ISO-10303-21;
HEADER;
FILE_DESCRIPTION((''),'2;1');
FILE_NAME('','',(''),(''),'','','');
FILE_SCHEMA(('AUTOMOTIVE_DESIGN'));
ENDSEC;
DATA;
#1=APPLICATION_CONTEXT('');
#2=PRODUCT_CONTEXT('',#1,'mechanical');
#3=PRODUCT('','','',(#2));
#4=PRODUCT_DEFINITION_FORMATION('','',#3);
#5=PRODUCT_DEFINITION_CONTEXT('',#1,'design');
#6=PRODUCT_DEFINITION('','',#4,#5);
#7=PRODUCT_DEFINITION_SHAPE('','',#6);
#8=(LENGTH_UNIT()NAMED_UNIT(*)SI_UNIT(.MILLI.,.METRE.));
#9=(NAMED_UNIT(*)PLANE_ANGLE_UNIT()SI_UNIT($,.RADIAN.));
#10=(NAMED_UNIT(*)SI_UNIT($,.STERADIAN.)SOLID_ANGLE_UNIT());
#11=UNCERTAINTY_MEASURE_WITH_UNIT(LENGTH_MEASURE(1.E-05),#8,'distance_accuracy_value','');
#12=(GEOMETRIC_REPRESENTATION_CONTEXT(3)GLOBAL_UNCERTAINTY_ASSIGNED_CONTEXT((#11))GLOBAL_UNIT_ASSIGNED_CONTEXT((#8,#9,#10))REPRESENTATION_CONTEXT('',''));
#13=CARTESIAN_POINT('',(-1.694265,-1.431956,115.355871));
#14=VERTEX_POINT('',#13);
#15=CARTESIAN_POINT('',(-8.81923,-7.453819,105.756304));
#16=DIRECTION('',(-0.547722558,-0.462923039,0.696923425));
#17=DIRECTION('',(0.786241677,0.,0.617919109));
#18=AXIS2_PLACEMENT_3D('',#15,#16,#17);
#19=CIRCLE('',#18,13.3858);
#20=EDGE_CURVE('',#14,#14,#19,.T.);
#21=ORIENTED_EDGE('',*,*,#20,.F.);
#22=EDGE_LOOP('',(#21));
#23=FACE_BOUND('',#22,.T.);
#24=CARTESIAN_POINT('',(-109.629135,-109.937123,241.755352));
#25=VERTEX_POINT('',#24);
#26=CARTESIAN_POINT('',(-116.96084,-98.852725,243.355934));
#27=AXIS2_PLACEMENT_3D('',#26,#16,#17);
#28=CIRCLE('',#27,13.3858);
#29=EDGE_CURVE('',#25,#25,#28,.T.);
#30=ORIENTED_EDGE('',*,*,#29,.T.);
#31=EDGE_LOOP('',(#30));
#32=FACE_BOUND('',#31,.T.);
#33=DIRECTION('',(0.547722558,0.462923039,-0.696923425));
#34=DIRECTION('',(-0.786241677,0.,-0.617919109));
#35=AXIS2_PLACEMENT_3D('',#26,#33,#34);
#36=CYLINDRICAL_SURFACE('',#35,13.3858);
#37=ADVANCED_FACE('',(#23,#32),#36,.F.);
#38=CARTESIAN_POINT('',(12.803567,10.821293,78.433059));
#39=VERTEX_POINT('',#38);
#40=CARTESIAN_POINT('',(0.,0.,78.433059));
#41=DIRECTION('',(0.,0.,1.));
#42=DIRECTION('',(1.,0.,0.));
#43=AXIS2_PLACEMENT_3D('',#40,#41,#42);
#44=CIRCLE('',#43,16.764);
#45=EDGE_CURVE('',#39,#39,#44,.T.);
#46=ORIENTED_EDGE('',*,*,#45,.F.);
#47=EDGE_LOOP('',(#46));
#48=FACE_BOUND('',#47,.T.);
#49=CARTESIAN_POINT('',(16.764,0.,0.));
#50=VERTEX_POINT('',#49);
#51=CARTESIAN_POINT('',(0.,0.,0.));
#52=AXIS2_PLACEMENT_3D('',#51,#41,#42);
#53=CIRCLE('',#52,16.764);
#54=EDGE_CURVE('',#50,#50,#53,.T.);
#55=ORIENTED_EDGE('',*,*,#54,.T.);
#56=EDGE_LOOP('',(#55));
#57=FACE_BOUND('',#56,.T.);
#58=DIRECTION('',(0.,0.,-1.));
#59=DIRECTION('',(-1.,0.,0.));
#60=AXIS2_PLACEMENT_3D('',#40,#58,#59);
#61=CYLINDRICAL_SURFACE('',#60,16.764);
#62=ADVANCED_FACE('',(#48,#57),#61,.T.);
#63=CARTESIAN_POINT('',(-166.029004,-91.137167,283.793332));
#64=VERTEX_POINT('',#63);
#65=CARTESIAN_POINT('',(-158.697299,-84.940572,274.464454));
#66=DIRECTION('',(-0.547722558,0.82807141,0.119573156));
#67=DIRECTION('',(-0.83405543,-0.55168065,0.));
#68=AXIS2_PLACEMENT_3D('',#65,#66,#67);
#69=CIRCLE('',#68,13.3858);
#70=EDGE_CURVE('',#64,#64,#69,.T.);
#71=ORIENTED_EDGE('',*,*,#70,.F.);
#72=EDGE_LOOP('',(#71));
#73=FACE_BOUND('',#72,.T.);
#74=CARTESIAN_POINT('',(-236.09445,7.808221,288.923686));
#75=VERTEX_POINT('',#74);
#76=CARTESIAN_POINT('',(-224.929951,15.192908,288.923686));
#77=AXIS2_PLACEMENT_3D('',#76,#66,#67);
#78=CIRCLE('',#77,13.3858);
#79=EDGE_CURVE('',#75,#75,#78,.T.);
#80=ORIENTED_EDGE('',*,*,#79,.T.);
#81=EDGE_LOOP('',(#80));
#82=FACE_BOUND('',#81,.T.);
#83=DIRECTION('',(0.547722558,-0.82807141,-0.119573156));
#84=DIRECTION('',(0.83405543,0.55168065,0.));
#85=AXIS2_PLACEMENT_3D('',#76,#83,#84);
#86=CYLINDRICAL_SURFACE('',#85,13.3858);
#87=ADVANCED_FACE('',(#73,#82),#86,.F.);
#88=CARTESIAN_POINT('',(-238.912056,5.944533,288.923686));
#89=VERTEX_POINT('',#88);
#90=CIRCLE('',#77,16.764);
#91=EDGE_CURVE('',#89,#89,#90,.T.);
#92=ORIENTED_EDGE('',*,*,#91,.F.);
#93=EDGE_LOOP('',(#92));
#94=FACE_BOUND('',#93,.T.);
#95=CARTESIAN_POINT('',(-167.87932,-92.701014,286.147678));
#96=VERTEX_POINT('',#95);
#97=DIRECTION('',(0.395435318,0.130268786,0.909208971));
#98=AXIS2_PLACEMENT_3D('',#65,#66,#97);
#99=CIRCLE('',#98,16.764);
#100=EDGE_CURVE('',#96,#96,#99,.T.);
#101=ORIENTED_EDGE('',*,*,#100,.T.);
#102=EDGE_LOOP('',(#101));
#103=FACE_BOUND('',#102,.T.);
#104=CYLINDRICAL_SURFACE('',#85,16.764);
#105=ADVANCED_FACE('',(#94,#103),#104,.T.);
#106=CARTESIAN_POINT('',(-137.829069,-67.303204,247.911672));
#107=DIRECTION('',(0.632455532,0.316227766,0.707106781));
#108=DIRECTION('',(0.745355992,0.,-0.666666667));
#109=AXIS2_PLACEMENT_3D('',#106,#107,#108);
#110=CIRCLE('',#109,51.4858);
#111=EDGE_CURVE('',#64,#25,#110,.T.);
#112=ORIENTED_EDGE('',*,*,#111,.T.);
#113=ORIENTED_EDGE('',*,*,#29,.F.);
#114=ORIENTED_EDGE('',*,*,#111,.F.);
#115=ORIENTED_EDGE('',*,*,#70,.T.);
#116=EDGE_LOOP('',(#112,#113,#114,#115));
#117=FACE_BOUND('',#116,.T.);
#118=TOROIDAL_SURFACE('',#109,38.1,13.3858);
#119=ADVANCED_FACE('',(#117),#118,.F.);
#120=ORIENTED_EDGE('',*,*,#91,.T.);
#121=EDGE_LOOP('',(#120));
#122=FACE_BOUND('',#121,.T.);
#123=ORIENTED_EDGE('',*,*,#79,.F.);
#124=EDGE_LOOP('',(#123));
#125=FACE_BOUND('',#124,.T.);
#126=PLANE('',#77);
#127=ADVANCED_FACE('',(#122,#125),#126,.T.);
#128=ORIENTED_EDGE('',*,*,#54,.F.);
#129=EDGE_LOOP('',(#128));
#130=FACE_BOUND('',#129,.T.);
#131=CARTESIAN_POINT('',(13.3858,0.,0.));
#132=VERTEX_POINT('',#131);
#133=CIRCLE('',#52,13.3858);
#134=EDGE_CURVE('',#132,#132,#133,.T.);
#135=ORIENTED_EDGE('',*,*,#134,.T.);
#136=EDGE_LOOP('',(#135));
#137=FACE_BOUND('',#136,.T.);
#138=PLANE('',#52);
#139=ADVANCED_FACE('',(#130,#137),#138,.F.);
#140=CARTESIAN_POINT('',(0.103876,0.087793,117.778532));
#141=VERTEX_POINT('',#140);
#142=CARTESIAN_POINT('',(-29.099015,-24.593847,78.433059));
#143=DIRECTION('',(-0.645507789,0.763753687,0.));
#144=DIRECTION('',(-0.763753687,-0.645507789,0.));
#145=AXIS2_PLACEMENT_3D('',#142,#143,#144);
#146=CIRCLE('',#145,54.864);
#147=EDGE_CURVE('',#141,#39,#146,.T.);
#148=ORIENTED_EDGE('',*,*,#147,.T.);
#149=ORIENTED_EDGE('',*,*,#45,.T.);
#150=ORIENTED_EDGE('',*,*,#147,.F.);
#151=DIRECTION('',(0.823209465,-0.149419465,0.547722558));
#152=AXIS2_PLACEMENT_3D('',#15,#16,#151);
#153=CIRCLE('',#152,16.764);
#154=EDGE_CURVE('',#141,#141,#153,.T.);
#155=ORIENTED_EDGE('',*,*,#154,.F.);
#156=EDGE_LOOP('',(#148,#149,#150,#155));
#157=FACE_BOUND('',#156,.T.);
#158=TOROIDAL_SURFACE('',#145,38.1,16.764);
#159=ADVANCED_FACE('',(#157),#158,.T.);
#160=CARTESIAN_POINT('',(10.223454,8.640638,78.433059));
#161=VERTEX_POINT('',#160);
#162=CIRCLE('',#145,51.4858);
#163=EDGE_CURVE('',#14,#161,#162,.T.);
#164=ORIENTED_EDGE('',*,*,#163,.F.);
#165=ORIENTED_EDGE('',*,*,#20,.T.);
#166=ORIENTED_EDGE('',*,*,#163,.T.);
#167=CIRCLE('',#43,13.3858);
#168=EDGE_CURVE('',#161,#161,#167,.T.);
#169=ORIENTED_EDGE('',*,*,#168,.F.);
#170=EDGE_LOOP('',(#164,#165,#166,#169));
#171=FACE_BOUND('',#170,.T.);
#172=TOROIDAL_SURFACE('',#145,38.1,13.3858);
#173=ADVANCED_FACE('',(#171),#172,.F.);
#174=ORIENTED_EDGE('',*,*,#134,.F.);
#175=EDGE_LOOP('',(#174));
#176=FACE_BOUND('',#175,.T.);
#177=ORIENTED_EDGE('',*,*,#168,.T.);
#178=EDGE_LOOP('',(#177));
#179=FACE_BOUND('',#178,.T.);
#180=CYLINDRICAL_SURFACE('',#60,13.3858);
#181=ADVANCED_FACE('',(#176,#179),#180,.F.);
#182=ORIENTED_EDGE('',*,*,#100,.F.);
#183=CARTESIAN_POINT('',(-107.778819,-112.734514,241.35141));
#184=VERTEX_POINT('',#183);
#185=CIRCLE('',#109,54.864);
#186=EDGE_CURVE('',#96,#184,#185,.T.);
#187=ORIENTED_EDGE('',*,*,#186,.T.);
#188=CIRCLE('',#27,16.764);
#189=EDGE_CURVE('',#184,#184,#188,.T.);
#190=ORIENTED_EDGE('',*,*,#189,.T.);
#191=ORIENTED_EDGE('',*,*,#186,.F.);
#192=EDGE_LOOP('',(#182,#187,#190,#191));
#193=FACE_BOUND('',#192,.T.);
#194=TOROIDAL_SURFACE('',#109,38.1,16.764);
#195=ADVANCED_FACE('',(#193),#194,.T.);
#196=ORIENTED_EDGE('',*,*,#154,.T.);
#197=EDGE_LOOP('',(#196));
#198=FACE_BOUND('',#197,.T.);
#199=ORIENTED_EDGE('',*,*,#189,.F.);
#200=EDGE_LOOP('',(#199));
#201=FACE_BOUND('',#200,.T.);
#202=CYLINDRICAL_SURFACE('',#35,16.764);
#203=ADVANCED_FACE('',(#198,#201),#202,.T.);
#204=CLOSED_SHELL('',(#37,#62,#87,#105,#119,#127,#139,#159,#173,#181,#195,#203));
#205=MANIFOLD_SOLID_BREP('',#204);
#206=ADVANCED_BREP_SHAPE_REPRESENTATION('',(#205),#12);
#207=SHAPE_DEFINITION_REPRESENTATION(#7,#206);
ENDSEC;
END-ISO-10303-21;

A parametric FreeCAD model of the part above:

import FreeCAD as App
import Part
import Sketcher
from FreeCAD import Vector
Q = App.Units.Quantity

doc = App.newDocument("Part")
body = doc.addObject("PartDesign::Body", "Body")

# Sketch on XY plane
sketch1 = doc.addObject("Sketcher::SketchObject", "Sketch")
body.addObject(sketch1)
sketch1.AttachmentSupport = (doc.XY_Plane, [""])
sketch1.MapMode = "FlatFace"
sketch1.addGeometry([
    Part.Circle(Vector(0, 0, 0), Vector(0, 0, 1), 17),
    Part.Circle(Vector(0, 0, 0), Vector(0, 0, 1), 13),
], False)
sketch1.addConstraint([
    Sketcher.Constraint("Coincident", 0, 3, -1, 1),
    Sketcher.Constraint("Coincident", 1, 3, -1, 1),
    Sketcher.Constraint("Diameter", 0, Q("1.32 in")),
    Sketcher.Constraint("Diameter", 1, Q("1.054 in")),
])
pad1 = doc.addObject("PartDesign::Pad", "Pad")
body.addObject(pad1)
pad1.Profile = sketch1
pad1.Length = 78.433059

# Sketch on XY plane
sketch2 = doc.addObject("Sketcher::SketchObject", "Sketch001")
body.addObject(sketch2)
sketch2.AttachmentSupport = (doc.XY_Plane, [""])
sketch2.MapMode = "FlatFace"
sketch2.AttachmentOffset = App.Placement(Vector(0, 0, 78.433059), App.Rotation())
sketch2.addGeometry([
    Part.Circle(Vector(0, 0, 0), Vector(0, 0, 1), 17),
    Part.Circle(Vector(0, 0, 0), Vector(0, 0, 1), 13),
], False)
sketch2.addGeometry(Part.LineSegment(Vector(-29, -25, 0), Vector(-23, -32, 0)), True)  # axis
sketch2.addConstraint([
    Sketcher.Constraint("Coincident", 0, 3, -1, 1),
    Sketcher.Constraint("Coincident", 1, 3, -1, 1),
    Sketcher.Constraint("Diameter", 0, Q("1.32 in")),
    Sketcher.Constraint("Diameter", 1, Q("1.054 in")),
    Sketcher.Constraint("Distance", 2, Q("10 mm")),
    Sketcher.Constraint("DistanceX", 2, 1, -1, 1, Q("29.099015 mm")),
    Sketcher.Constraint("DistanceY", 2, 1, -1, 1, Q("24.593847 mm")),
    Sketcher.Constraint("DistanceX", 2, 2, -1, 1, Q("22.643938 mm")),
])
revolution = doc.addObject("PartDesign::Revolution", "Revolution")
body.addObject(revolution)
revolution.Profile = sketch2
revolution.ReferenceAxis = (sketch2, ["Axis0"])
revolution.Angle = 45.819312

# Sketch on an angled plane
sketch3 = doc.addObject("Sketcher::SketchObject", "Sketch002")
body.addObject(sketch3)
sketch3.Placement = App.Placement(Vector(-44.905078, -37.952783, 57.137324), App.Rotation(Vector(0.836660027, -0.303054266, 0.456243478), Vector(0, 0.832982816, 0.55329886), Vector(-0.547722558, -0.462923039, 0.696923425), "ZXY"))
sketch3.addGeometry([
    Part.Circle(Vector(43, 52, 0), Vector(0, 0, 1), 17),
    Part.Circle(Vector(43, 52, 0), Vector(0, 0, 1), 13),
], False)
sketch3.addConstraint([
    Sketcher.Constraint("Coincident", 1, 3, 0, 3),
    Sketcher.Constraint("Diameter", 0, Q("1.32 in")),
    Sketcher.Constraint("Diameter", 1, Q("1.054 in")),
    Sketcher.Constraint("DistanceX", -1, 1, 0, 3, Q("43.130839 mm")),
    Sketcher.Constraint("DistanceY", -1, 1, 0, 3, Q("52.30594 mm")),
])
pad2 = doc.addObject("PartDesign::Pad", "Pad001")
body.addObject(pad2)
pad2.Profile = sketch3
pad2.Length = 197.438664

# Sketch on an angled plane
sketch4 = doc.addObject("Sketcher::SketchObject", "Sketch003")
body.addObject(sketch4)
sketch4.Placement = App.Placement(Vector(-153.046689, -129.351689, 194.736954), App.Rotation(Vector(0.836660027, -0.303054266, 0.456243478), Vector(0, 0.832982816, 0.55329886), Vector(-0.547722558, -0.462923039, 0.696923425), "ZXY"))
sketch4.addGeometry([
    Part.Circle(Vector(43, 52, 0), Vector(0, 0, 1), 17),
    Part.Circle(Vector(43, 52, 0), Vector(0, 0, 1), 13),
], False)
sketch4.addGeometry(Part.LineSegment(Vector(18, 81, 0), Vector(11, 75, 0)), True)  # axis
sketch4.addConstraint([
    Sketcher.Constraint("Coincident", 1, 3, 0, 3),
    Sketcher.Constraint("Diameter", 0, Q("1.32 in")),
    Sketcher.Constraint("Diameter", 1, Q("1.054 in")),
    Sketcher.Constraint("Distance", 2, Q("10 mm")),
    Sketcher.Constraint("DistanceX", -1, 1, 0, 3, Q("43.130839 mm")),
    Sketcher.Constraint("DistanceY", -1, 1, 0, 3, Q("52.30594 mm")),
    Sketcher.Constraint("DistanceX", 2, 2, 2, 1, Q("7.559289 mm")),
    Sketcher.Constraint("DistanceX", -1, 1, 2, 1, Q("18.188534 mm")),
    Sketcher.Constraint("DistanceY", -1, 1, 2, 1, Q("81.106832 mm")),
])
revolution2 = doc.addObject("PartDesign::Revolution", "Revolution001")
body.addObject(revolution2)
revolution2.Profile = sketch4
revolution2.ReferenceAxis = (sketch4, ["Axis0"])
revolution2.Angle = 90

# Sketch on an angled plane
sketch5 = doc.addObject("Sketcher::SketchObject", "Sketch004")
body.addObject(sketch5)
sketch5.Placement = App.Placement(Vector(-27.059582, 40.909884, 5.90737), App.Rotation(Vector(0.836660027, 0.542099988, 0.078279005), Vector(0, 0.142917257, -0.98973464), Vector(-0.547722558, 0.82807141, 0.119573156), "ZXY"))
sketch5.addGeometry([
    Part.Circle(Vector(-157, -284, 0), Vector(0, 0, 1), 17),
    Part.Circle(Vector(-157, -284, 0), Vector(0, 0, 1), 13),
], False)
sketch5.addConstraint([
    Sketcher.Constraint("Coincident", 1, 3, 0, 3),
    Sketcher.Constraint("Diameter", 0, Q("1.32 in")),
    Sketcher.Constraint("Diameter", 1, Q("1.054 in")),
    Sketcher.Constraint("DistanceY", 0, 3, -1, 1, Q("283.786451 mm")),
    Sketcher.Constraint("DistanceX", 0, 3, -1, 1, Q("157.337165 mm")),
])
pad3 = doc.addObject("PartDesign::Pad", "Pad002")
body.addObject(pad3)
pad3.Profile = sketch5
pad3.Length = 120.923725

doc.recompute()
